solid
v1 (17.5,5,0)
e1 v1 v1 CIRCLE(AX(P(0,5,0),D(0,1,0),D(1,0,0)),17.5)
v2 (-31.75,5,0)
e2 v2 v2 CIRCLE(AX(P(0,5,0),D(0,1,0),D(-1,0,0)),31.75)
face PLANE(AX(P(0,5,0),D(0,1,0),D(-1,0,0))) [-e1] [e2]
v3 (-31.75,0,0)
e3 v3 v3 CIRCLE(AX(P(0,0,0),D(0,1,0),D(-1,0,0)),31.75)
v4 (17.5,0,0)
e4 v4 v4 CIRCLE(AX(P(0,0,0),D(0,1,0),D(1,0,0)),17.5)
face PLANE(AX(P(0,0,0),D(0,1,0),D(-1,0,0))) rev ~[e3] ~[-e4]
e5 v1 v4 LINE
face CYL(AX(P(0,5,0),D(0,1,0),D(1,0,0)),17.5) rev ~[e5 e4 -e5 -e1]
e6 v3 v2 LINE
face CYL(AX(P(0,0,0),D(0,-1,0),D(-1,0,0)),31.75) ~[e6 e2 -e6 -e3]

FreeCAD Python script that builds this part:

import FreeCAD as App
import Part
import Sketcher

V = App.Vector
Q = App.Units.Quantity

doc = App.newDocument("Part")
body = doc.addObject("PartDesign::Body", "Body")

# Sketch on XZ plane
sketch1 = body.newObject("Sketcher::SketchObject", "Sketch")
sketch1.AttachmentSupport = (doc.getObject("XZ_Plane"), [""])
sketch1.MapMode = "FlatFace"
sketch1.addGeometry(Part.Circle(V(0, 0, 0), V(0, 0, 1), 32), False)
sketch1.addConstraint([
    Sketcher.Constraint("Coincident", 0, 3, -1, 1),
    Sketcher.Constraint("Diameter", 0, Q("63.5 mm")),
])
pad1 = body.newObject("PartDesign::Pad", "Pad")
pad1.Profile = sketch1
pad1.Length = 5
pad1.Reversed = True

# Sketch on XZ plane
sketch2 = body.newObject("Sketcher::SketchObject", "Sketch001")
sketch2.AttachmentSupport = (doc.getObject("XZ_Plane"), [""])
sketch2.MapMode = "FlatFace"
sketch2.AttachmentOffset = App.Placement(V(0, 0, -5), App.Rotation())
sketch2.addGeometry(Part.Circle(V(0, 0, 0), V(0, 0, 1), 18), False)
sketch2.addConstraint([
    Sketcher.Constraint("Coincident", 0, 3, -1, 1),
    Sketcher.Constraint("Diameter", 0, Q("35 mm")),
])
pocket1 = body.newObject("PartDesign::Pocket", "Pocket")
pocket1.Profile = sketch2
pocket1.Type = "ThroughAll"
pocket1.Reversed = True

doc.recompute()
